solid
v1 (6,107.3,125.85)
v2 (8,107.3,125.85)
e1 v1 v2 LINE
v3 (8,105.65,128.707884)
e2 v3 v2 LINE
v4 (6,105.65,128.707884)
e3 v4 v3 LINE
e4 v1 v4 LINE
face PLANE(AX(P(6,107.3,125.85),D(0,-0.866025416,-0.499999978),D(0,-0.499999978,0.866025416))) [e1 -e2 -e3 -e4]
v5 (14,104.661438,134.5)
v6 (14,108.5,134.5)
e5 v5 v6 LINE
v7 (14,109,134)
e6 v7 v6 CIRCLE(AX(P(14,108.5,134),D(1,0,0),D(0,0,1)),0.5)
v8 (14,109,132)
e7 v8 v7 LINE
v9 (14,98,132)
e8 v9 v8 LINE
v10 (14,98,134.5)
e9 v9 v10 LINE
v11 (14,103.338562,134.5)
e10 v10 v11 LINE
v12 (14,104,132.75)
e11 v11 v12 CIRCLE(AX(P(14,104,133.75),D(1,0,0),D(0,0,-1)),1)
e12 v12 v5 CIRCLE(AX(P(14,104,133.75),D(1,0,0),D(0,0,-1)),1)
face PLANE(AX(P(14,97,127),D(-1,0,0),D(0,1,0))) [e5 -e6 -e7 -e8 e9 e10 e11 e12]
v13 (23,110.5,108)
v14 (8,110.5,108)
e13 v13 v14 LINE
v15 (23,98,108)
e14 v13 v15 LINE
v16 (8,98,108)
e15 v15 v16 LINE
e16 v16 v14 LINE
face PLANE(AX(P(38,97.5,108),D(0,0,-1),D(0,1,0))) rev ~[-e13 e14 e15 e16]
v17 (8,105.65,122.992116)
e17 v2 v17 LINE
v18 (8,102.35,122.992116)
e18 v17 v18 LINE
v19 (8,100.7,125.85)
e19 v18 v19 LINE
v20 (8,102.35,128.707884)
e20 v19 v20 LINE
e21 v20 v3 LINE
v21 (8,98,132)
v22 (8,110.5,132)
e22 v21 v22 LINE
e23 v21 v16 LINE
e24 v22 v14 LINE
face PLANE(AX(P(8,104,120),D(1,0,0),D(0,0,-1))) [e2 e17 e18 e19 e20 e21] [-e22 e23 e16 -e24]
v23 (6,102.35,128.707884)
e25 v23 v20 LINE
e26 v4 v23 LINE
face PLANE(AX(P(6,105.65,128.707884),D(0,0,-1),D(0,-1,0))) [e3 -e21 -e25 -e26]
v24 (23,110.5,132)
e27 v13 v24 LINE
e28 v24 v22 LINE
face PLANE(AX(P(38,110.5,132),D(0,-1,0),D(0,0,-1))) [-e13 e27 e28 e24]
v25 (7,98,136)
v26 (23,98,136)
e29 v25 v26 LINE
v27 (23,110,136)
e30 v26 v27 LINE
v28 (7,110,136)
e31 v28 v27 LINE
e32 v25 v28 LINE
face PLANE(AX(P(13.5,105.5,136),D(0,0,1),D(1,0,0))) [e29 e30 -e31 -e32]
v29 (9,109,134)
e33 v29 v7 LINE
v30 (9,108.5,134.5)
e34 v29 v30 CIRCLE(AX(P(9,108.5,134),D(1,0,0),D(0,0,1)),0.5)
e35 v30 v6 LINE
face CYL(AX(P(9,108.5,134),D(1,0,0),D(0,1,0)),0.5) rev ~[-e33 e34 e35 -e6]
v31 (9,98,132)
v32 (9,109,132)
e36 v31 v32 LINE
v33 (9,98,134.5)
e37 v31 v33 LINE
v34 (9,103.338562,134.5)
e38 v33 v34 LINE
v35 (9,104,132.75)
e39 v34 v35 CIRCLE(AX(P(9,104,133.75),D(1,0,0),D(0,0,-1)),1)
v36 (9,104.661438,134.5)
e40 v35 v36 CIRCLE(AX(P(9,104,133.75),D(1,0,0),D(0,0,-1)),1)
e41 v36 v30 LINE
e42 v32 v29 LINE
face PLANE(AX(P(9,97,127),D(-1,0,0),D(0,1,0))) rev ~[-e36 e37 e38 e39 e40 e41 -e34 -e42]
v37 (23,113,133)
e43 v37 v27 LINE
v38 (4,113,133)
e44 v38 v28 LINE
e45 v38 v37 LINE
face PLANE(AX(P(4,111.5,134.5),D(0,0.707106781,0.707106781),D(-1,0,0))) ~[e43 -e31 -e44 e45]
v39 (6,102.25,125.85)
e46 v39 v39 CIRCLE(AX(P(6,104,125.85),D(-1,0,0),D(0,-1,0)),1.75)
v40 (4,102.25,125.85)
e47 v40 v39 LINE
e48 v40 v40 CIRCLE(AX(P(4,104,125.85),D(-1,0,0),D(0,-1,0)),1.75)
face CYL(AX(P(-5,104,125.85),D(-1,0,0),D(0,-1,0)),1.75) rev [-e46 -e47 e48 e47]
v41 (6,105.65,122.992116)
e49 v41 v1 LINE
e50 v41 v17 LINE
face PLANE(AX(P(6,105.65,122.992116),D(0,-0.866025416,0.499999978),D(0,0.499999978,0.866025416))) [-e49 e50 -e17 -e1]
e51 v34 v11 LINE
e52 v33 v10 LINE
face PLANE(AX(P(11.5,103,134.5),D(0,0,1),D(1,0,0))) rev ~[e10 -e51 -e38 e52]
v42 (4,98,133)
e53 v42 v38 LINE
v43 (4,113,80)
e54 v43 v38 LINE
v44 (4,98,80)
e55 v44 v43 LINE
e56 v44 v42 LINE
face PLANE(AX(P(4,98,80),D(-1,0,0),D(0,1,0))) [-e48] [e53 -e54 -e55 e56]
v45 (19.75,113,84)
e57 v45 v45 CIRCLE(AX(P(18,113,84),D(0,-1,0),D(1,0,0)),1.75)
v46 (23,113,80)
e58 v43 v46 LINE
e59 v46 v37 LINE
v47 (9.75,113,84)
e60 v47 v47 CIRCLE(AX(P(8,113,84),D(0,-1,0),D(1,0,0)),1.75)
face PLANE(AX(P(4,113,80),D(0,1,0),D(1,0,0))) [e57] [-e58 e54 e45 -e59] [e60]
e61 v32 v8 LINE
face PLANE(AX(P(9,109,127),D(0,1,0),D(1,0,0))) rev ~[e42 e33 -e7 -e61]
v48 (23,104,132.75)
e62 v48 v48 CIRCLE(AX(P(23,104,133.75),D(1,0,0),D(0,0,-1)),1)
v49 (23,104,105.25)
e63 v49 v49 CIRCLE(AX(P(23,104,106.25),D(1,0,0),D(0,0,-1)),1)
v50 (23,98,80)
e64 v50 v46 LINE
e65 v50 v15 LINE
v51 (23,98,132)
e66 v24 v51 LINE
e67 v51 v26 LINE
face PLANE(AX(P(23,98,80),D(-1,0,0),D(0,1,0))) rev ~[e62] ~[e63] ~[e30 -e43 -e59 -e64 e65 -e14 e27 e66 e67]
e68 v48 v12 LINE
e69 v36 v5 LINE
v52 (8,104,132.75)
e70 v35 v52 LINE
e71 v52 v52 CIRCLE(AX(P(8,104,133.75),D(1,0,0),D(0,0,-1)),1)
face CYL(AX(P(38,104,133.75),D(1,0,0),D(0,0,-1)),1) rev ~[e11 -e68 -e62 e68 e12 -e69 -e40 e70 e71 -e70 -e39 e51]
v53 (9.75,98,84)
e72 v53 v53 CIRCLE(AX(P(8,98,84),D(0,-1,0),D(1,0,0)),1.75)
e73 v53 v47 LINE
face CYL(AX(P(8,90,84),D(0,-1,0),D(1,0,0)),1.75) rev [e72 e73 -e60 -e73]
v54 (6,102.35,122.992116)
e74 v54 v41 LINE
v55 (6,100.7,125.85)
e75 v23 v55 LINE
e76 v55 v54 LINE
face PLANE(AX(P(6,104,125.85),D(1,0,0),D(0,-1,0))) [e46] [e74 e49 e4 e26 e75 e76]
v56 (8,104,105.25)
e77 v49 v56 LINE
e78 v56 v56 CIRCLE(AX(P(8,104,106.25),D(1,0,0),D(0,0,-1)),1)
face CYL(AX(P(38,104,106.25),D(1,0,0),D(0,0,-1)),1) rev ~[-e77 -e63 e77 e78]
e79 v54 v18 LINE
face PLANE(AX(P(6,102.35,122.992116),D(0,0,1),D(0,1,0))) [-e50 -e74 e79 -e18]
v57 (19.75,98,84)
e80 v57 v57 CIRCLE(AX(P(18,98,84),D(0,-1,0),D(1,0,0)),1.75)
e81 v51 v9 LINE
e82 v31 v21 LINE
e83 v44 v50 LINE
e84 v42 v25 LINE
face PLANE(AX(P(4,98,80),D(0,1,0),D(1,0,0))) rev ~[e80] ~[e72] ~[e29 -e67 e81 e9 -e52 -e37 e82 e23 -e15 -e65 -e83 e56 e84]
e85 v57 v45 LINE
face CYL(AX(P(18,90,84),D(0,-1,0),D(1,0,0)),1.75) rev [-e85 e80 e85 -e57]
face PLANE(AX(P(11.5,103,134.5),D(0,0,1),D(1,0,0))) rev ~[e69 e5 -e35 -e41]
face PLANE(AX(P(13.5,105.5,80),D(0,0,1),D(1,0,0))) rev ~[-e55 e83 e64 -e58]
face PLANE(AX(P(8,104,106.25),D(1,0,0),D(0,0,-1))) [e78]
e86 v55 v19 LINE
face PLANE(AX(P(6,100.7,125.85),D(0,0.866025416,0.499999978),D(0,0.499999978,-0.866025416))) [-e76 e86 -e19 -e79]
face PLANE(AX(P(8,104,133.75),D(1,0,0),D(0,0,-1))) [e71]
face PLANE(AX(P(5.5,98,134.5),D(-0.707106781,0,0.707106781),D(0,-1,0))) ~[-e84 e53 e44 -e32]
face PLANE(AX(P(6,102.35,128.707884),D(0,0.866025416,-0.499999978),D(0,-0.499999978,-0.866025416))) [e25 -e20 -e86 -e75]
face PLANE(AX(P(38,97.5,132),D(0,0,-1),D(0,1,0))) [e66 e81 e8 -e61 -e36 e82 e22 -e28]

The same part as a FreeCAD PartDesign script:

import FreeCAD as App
import Part
import Sketcher
Q = App.Units.Quantity


def edges_at(feature, points):
    """Names of the edges that pass closest to the given points."""
    edges = feature.Shape.Edges
    near = lambda p: min(range(len(edges)), key=lambda i: edges[i].distToShape(Part.Vertex(*p))[0])
    return sorted({f"Edge{near(p) + 1}" for p in points})

doc = App.newDocument("Part")
body = doc.addObject("PartDesign::Body", "Body")

# Sketch on XY plane
sketch1 = body.newObject("Sketcher::SketchObject", "Sketch")
sketch1.AttachmentSupport = (doc.getObject("XY_Plane"), [""])
sketch1.MapMode = "FlatFace"
sketch1.AttachmentOffset = App.Placement(App.Vector(0, 0, 127), App.Rotation())
sketch1.addGeometry([
    Part.LineSegment(App.Vector(9, 109, 0), App.Vector(9, 97, 0)),
    Part.LineSegment(App.Vector(9, 97, 0), App.Vector(14, 97, 0)),
    Part.LineSegment(App.Vector(14, 97, 0), App.Vector(14, 109, 0)),
    Part.LineSegment(App.Vector(14, 109, 0), App.Vector(9, 109, 0)),
], False)
sketch1.addConstraint([
    Sketcher.Constraint("Coincident", 0, 2, 1, 1),
    Sketcher.Constraint("Coincident", 1, 2, 2, 1),
    Sketcher.Constraint("Coincident", 2, 2, 3, 1),
    Sketcher.Constraint("Coincident", 3, 2, 0, 1),
    Sketcher.Constraint("Vertical", 0),
    Sketcher.Constraint("Horizontal", 1),
    Sketcher.Constraint("Vertical", 2),
    Sketcher.Constraint("Horizontal", 3),
    Sketcher.Constraint("DistanceX", 1, 1, 1, 2, 5.0),
    Sketcher.Constraint("DistanceY", 0, 2, 0, 1, 12.0),
    Sketcher.Constraint("DistanceX", -1, 1, 0, 2, 9.0),
    Sketcher.Constraint("DistanceY", -1, 1, 0, 2, 97.0),
])
pad1 = body.newObject("PartDesign::Pad", "Pad")
pad1.Profile = sketch1
pad1.Length = 7.5
body2 = doc.addObject("PartDesign::Body", "Body001")

# Sketch on YZ plane
sketch2 = body2.newObject("Sketcher::SketchObject", "Sketch001")
sketch2.AttachmentSupport = (doc.getObject("YZ_Plane001"), [""])
sketch2.MapMode = "FlatFace"
sketch2.AttachmentOffset = App.Placement(App.Vector(0, 0, -5), App.Rotation())
sketch2.addGeometry(Part.Circle(App.Vector(104, 125.85, 0), App.Vector(0, 0, 1), 1.75), False)
sketch2.addConstraint([
    Sketcher.Constraint("Diameter", 0, 3.5),
    Sketcher.Constraint("DistanceX", -1, 1, 0, 3, 104.0),
    Sketcher.Constraint("DistanceY", -1, 1, 0, 3, 125.85),
])
pad2 = body2.newObject("PartDesign::Pad", "Pad001")
pad2.Profile = sketch2
pad2.Length = 32
body3 = doc.addObject("PartDesign::Body", "Body002")

# Sketch on YZ plane
sketch3 = body3.newObject("Sketcher::SketchObject", "Sketch002")
sketch3.AttachmentSupport = (doc.getObject("YZ_Plane002"), [""])
sketch3.MapMode = "FlatFace"
sketch3.AttachmentOffset = App.Placement(App.Vector(0, 0, 6), App.Rotation())
sketch3.addGeometry([
    Part.LineSegment(App.Vector(100.7, 125.85, 0), App.Vector(102.35, 122.992116, 0)),  # 0
    Part.LineSegment(App.Vector(102.35, 122.992116, 0), App.Vector(105.65, 122.992116, 0)),  # 1
    Part.LineSegment(App.Vector(105.65, 122.992116, 0), App.Vector(107.3, 125.85, 0)),  # 2
    Part.LineSegment(App.Vector(107.3, 125.85, 0), App.Vector(105.65, 128.707884, 0)),  # 3
    Part.LineSegment(App.Vector(105.65, 128.707884, 0), App.Vector(102.35, 128.707884, 0)),  # 4
    Part.LineSegment(App.Vector(102.35, 128.707884, 0), App.Vector(100.7, 125.85, 0)),  # 5
], False)
sketch3.addConstraint([
    Sketcher.Constraint("Coincident", 0, 2, 1, 1),
    Sketcher.Constraint("Coincident", 1, 2, 2, 1),
    Sketcher.Constraint("Coincident", 2, 2, 3, 1),
    Sketcher.Constraint("Coincident", 3, 2, 4, 1),
    Sketcher.Constraint("Coincident", 4, 2, 5, 1),
    Sketcher.Constraint("Coincident", 5, 2, 0, 1),
    Sketcher.Constraint("Horizontal", 1),
    Sketcher.Constraint("Horizontal", 4),
    Sketcher.Constraint("Parallel", 0, 3),
    Sketcher.Constraint("Parallel", 2, 5),
    Sketcher.Constraint("Horizontal", 2, 2, 5, 2),
    Sketcher.Constraint("Vertical", 1, 2, 3, 2),
    Sketcher.Constraint("Vertical", 0, 2, 4, 2),
    Sketcher.Constraint("Angle", 0, Q("-60.000001 deg")),
    Sketcher.Constraint("DistanceX", 1, 1, 1, 2, 3.3),
    Sketcher.Constraint("Distance", 0, 3.3),
    Sketcher.Constraint("DistanceX", -1, 1, 2, 2, 107.3),
    Sketcher.Constraint("DistanceY", -1, 1, 2, 2, 125.85),
])
pad3 = body3.newObject("PartDesign::Pad", "Pad002")
pad3.Profile = sketch3
pad3.Length = 10
doc.recompute()

boolean = body3.newObject("PartDesign::Boolean", "Boolean")
boolean.Type = "Fuse"
boolean.addObjects([body2])
body4 = doc.addObject("PartDesign::Body", "Body003")
body4.AllowCompound = True

# Sketch on YZ plane
sketch4 = body4.newObject("Sketcher::SketchObject", "Sketch003")
sketch4.AttachmentSupport = (doc.getObject("YZ_Plane003"), [""])
sketch4.MapMode = "FlatFace"
sketch4.AttachmentOffset = App.Placement(App.Vector(0, 0, 38), App.Rotation())
sketch4.addGeometry([
    Part.Circle(App.Vector(104, 106.25, 0), App.Vector(0, 0, 1), 1),  # 0
    Part.Circle(App.Vector(104, 133.75, 0), App.Vector(0, 0, 1), 1),  # 1
    Part.LineSegment(App.Vector(110.5, 132, 0), App.Vector(97.5, 132, 0)),  # 2
    Part.LineSegment(App.Vector(97.5, 132, 0), App.Vector(97.5, 108, 0)),  # 3
    Part.LineSegment(App.Vector(97.5, 108, 0), App.Vector(110.5, 108, 0)),  # 4
    Part.LineSegment(App.Vector(110.5, 108, 0), App.Vector(110.5, 132, 0)),  # 5
], False)
sketch4.addConstraint([
    Sketcher.Constraint("Coincident", 2, 2, 3, 1),
    Sketcher.Constraint("Coincident", 3, 2, 4, 1),
    Sketcher.Constraint("Coincident", 4, 2, 5, 1),
    Sketcher.Constraint("Coincident", 5, 2, 2, 1),
    Sketcher.Constraint("Horizontal", 2),
    Sketcher.Constraint("Vertical", 3),
    Sketcher.Constraint("Horizontal", 4),
    Sketcher.Constraint("Vertical", 5),
    Sketcher.Constraint("Equal", 0, 1),
    Sketcher.Constraint("Vertical", 0, 3, 1, 3),
    Sketcher.Constraint("Diameter", 0, 2.0),
    Sketcher.Constraint("DistanceX", 2, 2, 2, 1, 13.0),
    Sketcher.Constraint("DistanceY", 3, 2, 3, 1, 24.0),
    Sketcher.Constraint("DistanceX", -1, 1, 0, 3, 104.0),
    Sketcher.Constraint("DistanceY", -1, 1, 2, 2, 132.0),
    Sketcher.Constraint("DistanceX", -1, 1, 2, 2, 97.5),
    Sketcher.Constraint("DistanceY", 0, 3, 1, 3, 27.5),
    Sketcher.Constraint("DistanceY", -1, 1, 0, 3, 106.25),
])
pad4 = body4.newObject("PartDesign::Pad", "Pad003")
pad4.Profile = sketch4
pad4.Length = 30
pad4.Reversed = True
body5 = doc.addObject("PartDesign::Body", "Body004")

# Sketch on XY plane
sketch5 = body5.newObject("Sketcher::SketchObject", "Sketch004")
sketch5.AttachmentSupport = (doc.getObject("XY_Plane004"), [""])
sketch5.MapMode = "FlatFace"
sketch5.addGeometry(Part.Circle(App.Vector(0, 0, 0), App.Vector(0, 0, 1), 1.75), False)
sketch5.addConstraint([
    Sketcher.Constraint("Coincident", 0, 3, -1, 1),
    Sketcher.Constraint("Diameter", 0, 3.5),
])
pad5 = body5.newObject("PartDesign::Pad", "Pad004")
pad5.Profile = sketch5
pad5.Length = 32
body6 = doc.addObject("PartDesign::Body", "Body005")
doc.recompute()

body5.Placement = App.Placement(App.Vector(0, 0, 0), App.Rotation(App.Vector(1, 0, 0), 270))
boolean2 = body6.newObject("PartDesign::Boolean", "Boolean001")
boolean2.Type = "Fuse"
boolean2.addObjects([body5])
body7 = doc.addObject("PartDesign::Body", "Body006")
doc.recompute()

body6.Placement = App.Placement(App.Vector(8, 90, 84), App.Rotation(App.Vector(0, 0, 1), 0))
boolean3 = body7.newObject("PartDesign::Boolean", "Boolean002")
boolean3.Type = "Fuse"
boolean3.addObjects([body6])
body8 = doc.addObject("PartDesign::Body", "Body007")

# Sketch on XY plane
sketch6 = body8.newObject("Sketcher::SketchObject", "Sketch005")
sketch6.AttachmentSupport = (doc.getObject("XY_Plane007"), [""])
sketch6.MapMode = "FlatFace"
sketch6.addGeometry(Part.Circle(App.Vector(0, 0, 0), App.Vector(0, 0, 1), 1.75), False)
sketch6.addConstraint([
    Sketcher.Constraint("Coincident", 0, 3, -1, 1),
    Sketcher.Constraint("Diameter", 0, 3.5),
])
pad6 = body8.newObject("PartDesign::Pad", "Pad005")
pad6.Profile = sketch6
pad6.Length = 32
body9 = doc.addObject("PartDesign::Body", "Body008")
doc.recompute()

body8.Placement = App.Placement(App.Vector(0, 0, 0), App.Rotation(App.Vector(1, 0, 0), 270))
boolean4 = body9.newObject("PartDesign::Boolean", "Boolean003")
boolean4.Type = "Fuse"
boolean4.addObjects([body8])
body10 = doc.addObject("PartDesign::Body", "Body009")
body10.AllowCompound = True
doc.recompute()

body9.Placement = App.Placement(App.Vector(18, 90, 84), App.Rotation(App.Vector(0, 0, 1), 0))
boolean5 = body10.newObject("PartDesign::Boolean", "Boolean004")
boolean5.Type = "Fuse"
boolean5.addObjects([body9])
doc.recompute()

boolean6 = body10.newObject("PartDesign::Boolean", "Boolean005")
boolean6.Type = "Fuse"
boolean6.addObjects([body7])
body11 = doc.addObject("PartDesign::Body", "Body010")

# Sketch on XY plane
sketch7 = body11.newObject("Sketcher::SketchObject", "Sketch006")
sketch7.AttachmentSupport = (doc.getObject("XY_Plane010"), [""])
sketch7.MapMode = "FlatFace"
sketch7.AttachmentOffset = App.Placement(App.Vector(0, 0, 80), App.Rotation())
sketch7.addGeometry([
    Part.LineSegment(App.Vector(4, 113, 0), App.Vector(4, 98, 0)),
    Part.LineSegment(App.Vector(4, 98, 0), App.Vector(23, 98, 0)),
    Part.LineSegment(App.Vector(23, 98, 0), App.Vector(23, 113, 0)),
    Part.LineSegment(App.Vector(23, 113, 0), App.Vector(4, 113, 0)),
], False)
sketch7.addConstraint([
    Sketcher.Constraint("Coincident", 0, 2, 1, 1),
    Sketcher.Constraint("Coincident", 1, 2, 2, 1),
    Sketcher.Constraint("Coincident", 2, 2, 3, 1),
    Sketcher.Constraint("Coincident", 3, 2, 0, 1),
    Sketcher.Constraint("Vertical", 0),
    Sketcher.Constraint("Horizontal", 1),
    Sketcher.Constraint("Vertical", 2),
    Sketcher.Constraint("Horizontal", 3),
    Sketcher.Constraint("DistanceX", 1, 1, 1, 2, 19.0),
    Sketcher.Constraint("DistanceY", 0, 2, 0, 1, 15.0),
    Sketcher.Constraint("DistanceX", -1, 1, 0, 2, 4.0),
    Sketcher.Constraint("DistanceY", -1, 1, 0, 2, 98.0),
])
pad7 = body11.newObject("PartDesign::Pad", "Pad006")
pad7.Profile = sketch7
pad7.Length = 56
doc.recompute()

boolean7 = body11.newObject("PartDesign::Boolean", "Boolean006")
boolean7.Type = "Cut"
boolean7.addObjects([body10])
doc.recompute()

boolean8 = body11.newObject("PartDesign::Boolean", "Boolean007")
boolean8.Type = "Cut"
boolean8.addObjects([body4])
doc.recompute()

chamfer = body11.newObject("PartDesign::Chamfer", "Chamfer")
chamfer.Base = (boolean8, edges_at(boolean8, [(4, 105.5, 136), (13.5, 113, 136)]))
chamfer.Size = 3
doc.recompute()

boolean9 = body11.newObject("PartDesign::Boolean", "Boolean008")
boolean9.Type = "Cut"
boolean9.addObjects([body3])
doc.recompute()

boolean10 = body11.newObject("PartDesign::Boolean", "Boolean009")
boolean10.Type = "Cut"
boolean10.addObjects([body])
doc.recompute()

fillet = body11.newObject("PartDesign::Fillet", "Fillet")
fillet.Base = (boolean10, edges_at(boolean10, [(11.5, 109, 134.5)]))
fillet.Radius = 0.5

doc.recompute()
